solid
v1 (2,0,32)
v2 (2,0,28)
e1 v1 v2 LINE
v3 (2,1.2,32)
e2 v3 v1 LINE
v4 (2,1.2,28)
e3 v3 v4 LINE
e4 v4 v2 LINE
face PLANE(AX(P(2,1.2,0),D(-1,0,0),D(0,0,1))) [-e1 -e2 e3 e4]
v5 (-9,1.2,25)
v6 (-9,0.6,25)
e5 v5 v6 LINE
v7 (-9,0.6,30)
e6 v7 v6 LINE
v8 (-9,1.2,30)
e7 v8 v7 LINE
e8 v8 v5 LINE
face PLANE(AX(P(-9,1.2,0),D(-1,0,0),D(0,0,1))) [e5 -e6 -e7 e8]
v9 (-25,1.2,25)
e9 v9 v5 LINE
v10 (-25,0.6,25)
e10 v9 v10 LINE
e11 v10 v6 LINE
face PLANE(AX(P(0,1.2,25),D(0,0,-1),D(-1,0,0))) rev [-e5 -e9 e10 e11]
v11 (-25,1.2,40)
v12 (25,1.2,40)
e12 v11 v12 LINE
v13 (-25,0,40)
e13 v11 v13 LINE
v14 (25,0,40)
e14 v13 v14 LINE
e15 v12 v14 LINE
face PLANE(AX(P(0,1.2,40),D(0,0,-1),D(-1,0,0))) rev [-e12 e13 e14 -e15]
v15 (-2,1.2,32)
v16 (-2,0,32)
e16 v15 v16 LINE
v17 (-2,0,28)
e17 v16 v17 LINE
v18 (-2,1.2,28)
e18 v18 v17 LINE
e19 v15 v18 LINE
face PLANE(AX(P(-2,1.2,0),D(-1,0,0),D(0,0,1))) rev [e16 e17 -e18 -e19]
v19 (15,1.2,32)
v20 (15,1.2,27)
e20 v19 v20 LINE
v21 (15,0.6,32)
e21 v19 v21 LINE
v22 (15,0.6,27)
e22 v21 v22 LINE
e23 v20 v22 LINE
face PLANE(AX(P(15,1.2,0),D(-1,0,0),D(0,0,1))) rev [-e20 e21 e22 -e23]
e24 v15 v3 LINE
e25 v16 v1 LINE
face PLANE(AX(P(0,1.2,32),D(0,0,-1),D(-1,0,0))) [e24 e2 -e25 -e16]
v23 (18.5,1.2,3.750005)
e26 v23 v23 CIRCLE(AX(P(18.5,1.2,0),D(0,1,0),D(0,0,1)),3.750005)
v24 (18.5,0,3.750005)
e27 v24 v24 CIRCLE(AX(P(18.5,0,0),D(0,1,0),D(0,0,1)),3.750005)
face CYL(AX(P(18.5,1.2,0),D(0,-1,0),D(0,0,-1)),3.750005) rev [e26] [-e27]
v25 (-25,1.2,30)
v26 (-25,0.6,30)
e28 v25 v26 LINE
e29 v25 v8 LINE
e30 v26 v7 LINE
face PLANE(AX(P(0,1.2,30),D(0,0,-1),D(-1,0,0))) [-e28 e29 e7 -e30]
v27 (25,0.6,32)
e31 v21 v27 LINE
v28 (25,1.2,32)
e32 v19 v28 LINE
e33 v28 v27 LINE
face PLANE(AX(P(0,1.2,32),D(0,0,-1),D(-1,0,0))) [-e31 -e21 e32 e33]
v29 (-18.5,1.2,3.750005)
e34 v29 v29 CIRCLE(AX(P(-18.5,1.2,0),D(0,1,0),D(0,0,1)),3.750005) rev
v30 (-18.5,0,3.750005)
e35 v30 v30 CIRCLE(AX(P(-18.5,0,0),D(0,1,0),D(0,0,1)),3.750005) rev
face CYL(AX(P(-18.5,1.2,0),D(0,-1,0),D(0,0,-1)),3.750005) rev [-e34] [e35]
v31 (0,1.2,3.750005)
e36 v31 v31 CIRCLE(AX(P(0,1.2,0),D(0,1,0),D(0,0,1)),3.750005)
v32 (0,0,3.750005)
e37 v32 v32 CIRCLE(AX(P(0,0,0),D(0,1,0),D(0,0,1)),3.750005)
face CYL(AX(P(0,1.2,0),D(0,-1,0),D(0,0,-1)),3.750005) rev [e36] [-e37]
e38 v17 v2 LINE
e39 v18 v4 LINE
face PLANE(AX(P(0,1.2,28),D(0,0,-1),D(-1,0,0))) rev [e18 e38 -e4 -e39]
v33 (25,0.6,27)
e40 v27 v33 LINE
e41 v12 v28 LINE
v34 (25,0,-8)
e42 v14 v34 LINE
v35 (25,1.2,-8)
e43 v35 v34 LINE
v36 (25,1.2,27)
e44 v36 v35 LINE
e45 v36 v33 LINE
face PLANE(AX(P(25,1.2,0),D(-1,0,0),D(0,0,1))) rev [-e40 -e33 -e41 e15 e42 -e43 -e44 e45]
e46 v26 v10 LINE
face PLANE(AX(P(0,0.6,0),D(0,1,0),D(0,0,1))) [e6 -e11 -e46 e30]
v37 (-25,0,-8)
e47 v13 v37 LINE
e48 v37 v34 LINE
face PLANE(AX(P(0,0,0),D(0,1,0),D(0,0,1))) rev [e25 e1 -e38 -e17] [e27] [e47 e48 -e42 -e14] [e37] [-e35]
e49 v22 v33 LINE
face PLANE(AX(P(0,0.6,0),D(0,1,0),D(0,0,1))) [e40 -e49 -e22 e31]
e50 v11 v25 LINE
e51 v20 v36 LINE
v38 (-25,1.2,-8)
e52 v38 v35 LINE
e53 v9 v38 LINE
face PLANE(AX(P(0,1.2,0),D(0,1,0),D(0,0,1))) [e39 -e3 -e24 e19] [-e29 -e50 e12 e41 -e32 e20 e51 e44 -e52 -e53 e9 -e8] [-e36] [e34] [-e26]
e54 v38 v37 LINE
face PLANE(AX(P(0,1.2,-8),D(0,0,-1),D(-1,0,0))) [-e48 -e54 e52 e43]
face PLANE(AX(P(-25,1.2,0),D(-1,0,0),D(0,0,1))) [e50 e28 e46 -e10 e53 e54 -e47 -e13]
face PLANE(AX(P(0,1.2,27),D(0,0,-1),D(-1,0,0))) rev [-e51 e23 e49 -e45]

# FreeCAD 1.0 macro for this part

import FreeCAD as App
import Part
import Sketcher

V = App.Vector
Q = App.Units.Quantity


def add_polygon(sketch, points):
    """Adds a closed chain of lines whose ends are joined by coincident constraints."""
    first, n = sketch.GeometryCount, len(points)
    for a, b in zip(points, points[1:] + points[:1]):
        sketch.addGeometry(Part.LineSegment(App.Vector(*a, 0), App.Vector(*b, 0)), False)
    for i in range(n):
        sketch.addConstraint(Sketcher.Constraint("Coincident", first + i, 2, first + (i + 1) % n, 1))

doc = App.newDocument("Part")
body = doc.addObject("PartDesign::Body", "Body")

# Sketch on XZ plane
sketch1 = doc.addObject("Sketcher::SketchObject", "Sketch")
body.addObject(sketch1)
sketch1.AttachmentSupport = (doc.XZ_Plane, [""])
sketch1.MapMode = "FlatFace"
add_polygon(sketch1, [(-25, 30), (-25, 40), (25, 40), (25, 32), (15, 32), (15, 27), (25, 27), (25, -8), (-25, -8), (-25, 25), (-9, 25), (-9, 30)])  # lines 0-11
add_polygon(sketch1, [(2, 32), (-2, 32), (-2, 28), (2, 28)])  # lines 12-15
sketch1.addGeometry(Part.Circle(V(-18.5, 0, 0), V(0, 0, 1), 3.8), False)  # 16
sketch1.addGeometry(Part.Circle(V(0, 0, 0), V(0, 0, 1), 3.8), False)  # 17
sketch1.addGeometry(Part.Circle(V(18.5, 0, 0), V(0, 0, 1), 3.8), False)  # 18
sketch1.addConstraint(Sketcher.Constraint("Vertical", 0))
sketch1.addConstraint(Sketcher.Constraint("Horizontal", 1))
sketch1.addConstraint(Sketcher.Constraint("Vertical", 2))
sketch1.addConstraint(Sketcher.Constraint("Horizontal", 3))
sketch1.addConstraint(Sketcher.Constraint("Vertical", 4))
sketch1.addConstraint(Sketcher.Constraint("Horizontal", 5))
sketch1.addConstraint(Sketcher.Constraint("Vertical", 6))
sketch1.addConstraint(Sketcher.Constraint("Horizontal", 7))
sketch1.addConstraint(Sketcher.Constraint("Vertical", 8))
sketch1.addConstraint(Sketcher.Constraint("Horizontal", 9))
sketch1.addConstraint(Sketcher.Constraint("Vertical", 10))
sketch1.addConstraint(Sketcher.Constraint("Horizontal", 11))
sketch1.addConstraint(Sketcher.Constraint("Horizontal", 12))
sketch1.addConstraint(Sketcher.Constraint("Vertical", 13))
sketch1.addConstraint(Sketcher.Constraint("Horizontal", 14))
sketch1.addConstraint(Sketcher.Constraint("Vertical", 15))
sketch1.addConstraint(Sketcher.Constraint("Coincident", 17, 3, -1, 1))
sketch1.addConstraint(Sketcher.Constraint("Equal", 16, 17))
sketch1.addConstraint(Sketcher.Constraint("Equal", 17, 18))
sketch1.addConstraint(Sketcher.Constraint("Symmetric", 16, 3, 18, 3, -1, 1))
sketch1.addConstraint(Sketcher.Constraint("PointOnObject", 16, 3, -1))
sketch1.addConstraint(Sketcher.Constraint("Horizontal", 3, 2, 12, 2))
sketch1.addConstraint(Sketcher.Constraint("Vertical", 2, 2, 5, 2))
sketch1.addConstraint(Sketcher.Constraint("Vertical", 0, 2, 7, 2))
sketch1.addConstraint(Sketcher.Constraint("Equal", 5, 0))
sketch1.addConstraint(Sketcher.Constraint("Equal", 4, 10))
sketch1.addConstraint(Sketcher.Constraint("Equal", 14, 13))
sketch1.addConstraint(Sketcher.Constraint("DistanceX", 1, 1, 1, 2, Q("50 mm")))
sketch1.addConstraint(Sketcher.Constraint("DistanceX", 3, 2, 3, 1, Q("10 mm")))
sketch1.addConstraint(Sketcher.Constraint("DistanceX", 9, 1, 9, 2, Q("16 mm")))
sketch1.addConstraint(Sketcher.Constraint("DistanceX", 12, 2, 12, 1, Q("4 mm")))
sketch1.addConstraint(Sketcher.Constraint("DistanceY", 2, 2, 2, 1, Q("8 mm")))
sketch1.addConstraint(Sketcher.Constraint("DistanceY", 4, 2, 4, 1, Q("5 mm")))
sketch1.addConstraint(Sketcher.Constraint("DistanceY", 6, 2, 6, 1, Q("35 mm")))
sketch1.addConstraint(Sketcher.Constraint("DistanceX", 0, 2, -1, 1, Q("25 mm")))
sketch1.addConstraint(Sketcher.Constraint("DistanceY", -1, 1, 0, 2, Q("40 mm")))
sketch1.addConstraint(Sketcher.Constraint("DistanceX", 12, 2, -1, 1, Q("2 mm")))
sketch1.addConstraint(Sketcher.Constraint("DistanceX", 16, 3, 18, 3, Q("37 mm")))
sketch1.addConstraint(Sketcher.Constraint("Diameter", 16, Q("7.50001 mm")))
pad1 = doc.addObject("PartDesign::Pad", "Pad")
body.addObject(pad1)
pad1.Profile = sketch1
pad1.Length = 1.2
pad1.Reversed = True

# Sketch on XZ plane
sketch2 = doc.addObject("Sketcher::SketchObject", "Sketch001")
body.addObject(sketch2)
sketch2.AttachmentSupport = (doc.XZ_Plane, [""])
sketch2.MapMode = "FlatFace"
add_polygon(sketch2, [(-25, 25), (-25, 30), (-9, 30), (-9, 25)])  # lines 0-3
add_polygon(sketch2, [(15, 27), (15, 32), (25, 32), (25, 27)])  # lines 4-7
sketch2.addConstraint(Sketcher.Constraint("Vertical", 0))
sketch2.addConstraint(Sketcher.Constraint("Horizontal", 1))
sketch2.addConstraint(Sketcher.Constraint("Vertical", 2))
sketch2.addConstraint(Sketcher.Constraint("Horizontal", 3))
sketch2.addConstraint(Sketcher.Constraint("Vertical", 4))
sketch2.addConstraint(Sketcher.Constraint("Horizontal", 5))
sketch2.addConstraint(Sketcher.Constraint("Vertical", 6))
sketch2.addConstraint(Sketcher.Constraint("Horizontal", 7))
sketch2.addConstraint(Sketcher.Constraint("Equal", 2, 4))
sketch2.addConstraint(Sketcher.Constraint("DistanceX", 1, 1, 1, 2, Q("16 mm")))
sketch2.addConstraint(Sketcher.Constraint("DistanceX", 5, 1, 5, 2, Q("10 mm")))
sketch2.addConstraint(Sketcher.Constraint("DistanceY", 0, 1, 0, 2, Q("5 mm")))
sketch2.addConstraint(Sketcher.Constraint("DistanceX", 0, 2, -1, 1, Q("25 mm")))
sketch2.addConstraint(Sketcher.Constraint("DistanceY", -1, 1, 0, 2, Q("30 mm")))
sketch2.addConstraint(Sketcher.Constraint("DistanceX", -1, 1, 4, 2, Q("15 mm")))
sketch2.addConstraint(Sketcher.Constraint("DistanceY", -1, 1, 4, 2, Q("32 mm")))
pad2 = doc.addObject("PartDesign::Pad", "Pad001")
body.addObject(pad2)
pad2.Profile = sketch2
pad2.Length = 0.6
pad2.Reversed = True

doc.recompute()
